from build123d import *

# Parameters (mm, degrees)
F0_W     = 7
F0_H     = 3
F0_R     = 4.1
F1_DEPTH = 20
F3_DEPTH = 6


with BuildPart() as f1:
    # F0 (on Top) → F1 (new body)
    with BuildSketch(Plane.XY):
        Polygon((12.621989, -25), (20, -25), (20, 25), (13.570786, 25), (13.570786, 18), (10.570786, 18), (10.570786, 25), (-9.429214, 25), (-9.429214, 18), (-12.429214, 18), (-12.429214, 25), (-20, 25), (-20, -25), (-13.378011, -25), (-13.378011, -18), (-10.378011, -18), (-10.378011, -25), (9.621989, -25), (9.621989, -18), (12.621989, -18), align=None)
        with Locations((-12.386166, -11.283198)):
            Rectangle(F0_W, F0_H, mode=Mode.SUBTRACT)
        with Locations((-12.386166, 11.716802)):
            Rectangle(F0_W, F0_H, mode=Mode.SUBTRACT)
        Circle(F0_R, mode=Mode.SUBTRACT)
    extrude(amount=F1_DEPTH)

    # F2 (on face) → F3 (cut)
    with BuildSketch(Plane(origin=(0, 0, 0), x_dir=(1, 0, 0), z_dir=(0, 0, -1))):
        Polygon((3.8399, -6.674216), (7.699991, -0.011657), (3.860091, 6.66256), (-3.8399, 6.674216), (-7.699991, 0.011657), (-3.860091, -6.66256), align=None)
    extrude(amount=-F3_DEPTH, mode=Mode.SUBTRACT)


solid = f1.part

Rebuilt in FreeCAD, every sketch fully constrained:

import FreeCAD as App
import Part
import Sketcher
Q = App.Units.Quantity


def add_polygon(sketch, points):
    """Adds a closed chain of lines whose ends are joined by coincident constraints."""
    first, n = sketch.GeometryCount, len(points)
    for a, b in zip(points, points[1:] + points[:1]):
        sketch.addGeometry(Part.LineSegment(App.Vector(*a, 0), App.Vector(*b, 0)), False)
    for i in range(n):
        sketch.addConstraint(Sketcher.Constraint("Coincident", first + i, 2, first + (i + 1) % n, 1))

doc = App.newDocument("Part")
body = doc.addObject("PartDesign::Body", "Body")

sketch1 = body.newObject("Sketcher::SketchObject", "Sketch")
sketch1.AttachmentSupport = (doc.getObject("XY_Plane"), [""])
sketch1.MapMode = "FlatFace"
add_polygon(sketch1, [(12.6, -25), (20, -25), (20, 25), (13.6, 25), (13.6, 18), (10.6, 18), (10.6, 25), (-9.4, 25), (-9.4, 18), (-12.4, 18), (-12.4, 25), (-20, 25), (-20, -25), (-13.4, -25), (-13.4, -18), (-10.4, -18), (-10.4, -25), (9.6, -25), (9.6, -18), (12.6, -18)])
add_polygon(sketch1, [(-8.9, -12.8), (-15.9, -12.8), (-15.9, -9.8), (-8.9, -9.8)])
sketch1.addGeometry(Part.Circle(App.Vector(0, 0, 0), App.Vector(0, 0, 1), 4.1), False)
add_polygon(sketch1, [(-8.9, 10.2), (-15.9, 10.2), (-15.9, 13.2), (-8.9, 13.2)])
sketch1.addConstraint([
    Sketcher.Constraint("Horizontal", 0),
    Sketcher.Constraint("Vertical", 1),
    Sketcher.Constraint("Horizontal", 2),
    Sketcher.Constraint("Vertical", 3),
    Sketcher.Constraint("Horizontal", 4),
    Sketcher.Constraint("Vertical", 5),
    Sketcher.Constraint("Horizontal", 6),
    Sketcher.Constraint("Vertical", 7),
    Sketcher.Constraint("Horizontal", 8),
    Sketcher.Constraint("Vertical", 9),
    Sketcher.Constraint("Horizontal", 10),
    Sketcher.Constraint("Vertical", 11),
    Sketcher.Constraint("Horizontal", 12),
    Sketcher.Constraint("Vertical", 13),
    Sketcher.Constraint("Horizontal", 14),
    Sketcher.Constraint("Vertical", 15),
    Sketcher.Constraint("Horizontal", 16),
    Sketcher.Constraint("Vertical", 17),
    Sketcher.Constraint("Horizontal", 18),
    Sketcher.Constraint("Vertical", 19),
    Sketcher.Constraint("Horizontal", 20),
    Sketcher.Constraint("Vertical", 21),
    Sketcher.Constraint("Horizontal", 22),
    Sketcher.Constraint("Vertical", 23),
    Sketcher.Constraint("Horizontal", 25),
    Sketcher.Constraint("Vertical", 26),
    Sketcher.Constraint("Horizontal", 27),
    Sketcher.Constraint("Vertical", 28),
    Sketcher.Constraint("Coincident", 24, 3, -1, 1),
    Sketcher.Constraint("Symmetric", 0, 2, 10, 2, -1, 1),
    Sketcher.Constraint("Horizontal", 2, 2, 5, 2),
    Sketcher.Constraint("Horizontal", 4, 2, 7, 2),
    Sketcher.Constraint("Horizontal", 6, 2, 9, 2),
    Sketcher.Constraint("Horizontal", 0, 2, 11, 2),
    Sketcher.Constraint("Horizontal", 12, 2, 15, 2),
    Sketcher.Constraint("Horizontal", 14, 2, 17, 2),
    Sketcher.Constraint("Vertical", 21, 2, 25, 2),
    Sketcher.Constraint("Vertical", 23, 2, 27, 2),
    Sketcher.Constraint("Equal", 4, 8),
    Sketcher.Constraint("Equal", 8, 14),
    Sketcher.Constraint("Equal", 6, 16),
    Sketcher.Constraint("Equal", 14, 18),
    Sketcher.Constraint("Equal", 27, 3),
    Sketcher.Constraint("Equal", 9, 13),
    Sketcher.Constraint("Equal", 18, 21),
    Sketcher.Constraint("Equal", 23, 26),
    Sketcher.Constraint("Diameter", 24, Q("8.2 mm")),
    Sketcher.Constraint("DistanceX", 4, 2, 4, 1, Q("3 mm")),
    Sketcher.Constraint("DistanceX", 6, 2, 6, 1, Q("20 mm")),
    Sketcher.Constraint("DistanceX", 20, 2, 20, 1, Q("7 mm")),
    Sketcher.Constraint("DistanceY", 1, 1, 1, 2, Q("50 mm")),
    Sketcher.Constraint("DistanceX", -1, 1, 0, 2, Q("20 mm")),
    Sketcher.Constraint("DistanceX", 0, 1, 0, 2, Q("7.378011 mm")),
    Sketcher.Constraint("DistanceY", 13, 2, 20, 2, Q("5.216802 mm")),
    Sketcher.Constraint("DistanceY", 25, 2, 8, 2, Q("7.783198 mm")),
    Sketcher.Constraint("DistanceX", 2, 2, 2, 1, Q("6.429214 mm")),
    Sketcher.Constraint("DistanceX", 25, 2, 8, 2, Q("3.456952 mm")),
])
pad1 = body.newObject("PartDesign::Pad", "Pad")
pad1.Profile = sketch1
pad1.Length = 20

sketch2 = body.newObject("Sketcher::SketchObject", "Sketch001")
sketch2.AttachmentSupport = (doc.getObject("XY_Plane"), [""])
sketch2.MapMode = "FlatFace"
add_polygon(sketch2, [(4, 7), (8, 0), (4, -7), (-4, -7), (-8, 0), (-4, 7)])
sketch2.addConstraint([
    Sketcher.Constraint("Symmetric", 0, 2, 3, 2, -1, 1),
    Sketcher.Constraint("Symmetric", 1, 2, 4, 2, -1, 1),
    Sketcher.Constraint("Symmetric", 2, 2, 5, 2, -1, 1),
    Sketcher.Constraint("Equal", 0, 1),
    Sketcher.Constraint("Equal", 1, 2),
    Sketcher.Constraint("Distance", 0, Q("7.7 mm")),
    Sketcher.Constraint("DistanceX", 2, 2, -1, 1, Q("3.8399 mm")),
    Sketcher.Constraint("DistanceX", 1, 2, 0, 2, Q("3.8399 mm")),
    Sketcher.Constraint("DistanceY", 1, 2, -1, 1, Q("6.66256 mm")),
])
pocket1 = body.newObject("PartDesign::Pocket", "Pocket")
pocket1.Profile = sketch2
pocket1.Length = 6
pocket1.Reversed = True

doc.recompute()
